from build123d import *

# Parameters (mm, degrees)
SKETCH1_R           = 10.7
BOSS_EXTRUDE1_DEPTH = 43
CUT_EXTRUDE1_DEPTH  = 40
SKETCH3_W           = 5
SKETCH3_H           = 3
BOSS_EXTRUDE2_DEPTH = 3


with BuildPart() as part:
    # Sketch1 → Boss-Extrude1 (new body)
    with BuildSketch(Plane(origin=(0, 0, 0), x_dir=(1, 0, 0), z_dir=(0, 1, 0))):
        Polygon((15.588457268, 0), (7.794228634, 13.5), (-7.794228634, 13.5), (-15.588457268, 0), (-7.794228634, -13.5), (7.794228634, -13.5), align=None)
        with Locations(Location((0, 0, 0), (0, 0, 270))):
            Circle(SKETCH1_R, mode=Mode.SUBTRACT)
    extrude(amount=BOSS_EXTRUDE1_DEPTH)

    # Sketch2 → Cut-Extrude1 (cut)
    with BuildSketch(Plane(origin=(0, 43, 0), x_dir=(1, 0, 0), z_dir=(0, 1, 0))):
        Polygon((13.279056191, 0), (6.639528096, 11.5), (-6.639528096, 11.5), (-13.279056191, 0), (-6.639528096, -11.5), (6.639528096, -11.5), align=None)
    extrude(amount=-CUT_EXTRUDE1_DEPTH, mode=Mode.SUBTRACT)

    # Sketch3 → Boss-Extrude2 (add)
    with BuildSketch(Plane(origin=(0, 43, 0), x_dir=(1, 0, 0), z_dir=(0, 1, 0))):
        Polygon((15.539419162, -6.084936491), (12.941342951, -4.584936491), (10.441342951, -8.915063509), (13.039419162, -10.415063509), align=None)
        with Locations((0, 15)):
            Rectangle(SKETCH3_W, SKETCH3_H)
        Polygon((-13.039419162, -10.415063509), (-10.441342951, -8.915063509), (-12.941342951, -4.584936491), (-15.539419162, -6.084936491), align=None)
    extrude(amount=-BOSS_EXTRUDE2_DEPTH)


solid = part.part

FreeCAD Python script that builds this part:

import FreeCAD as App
import Part
import Sketcher
from FreeCAD import Vector
Q = App.Units.Quantity

doc = App.newDocument("Part")
body = doc.addObject("PartDesign::Body", "Body")

# Sketch on XZ plane
sketch1 = body.newObject("Sketcher::SketchObject", "Sketch")
sketch1.AttachmentSupport = (doc.getObject("XZ_Plane"), [""])
sketch1.MapMode = "FlatFace"
sketch1.addGeometry(Part.LineSegment(Vector(16, 0, 0), Vector(8, -14, 0)), False)
sketch1.addGeometry(Part.LineSegment(Vector(8, -14, 0), Vector(-8, -14, 0)), False)
sketch1.addGeometry(Part.LineSegment(Vector(-8, -14, 0), Vector(-16, 0, 0)), False)
sketch1.addGeometry(Part.LineSegment(Vector(-16, 0, 0), Vector(-8, 14, 0)), False)
sketch1.addGeometry(Part.LineSegment(Vector(-8, 14, 0), Vector(8, 14, 0)), False)
sketch1.addGeometry(Part.LineSegment(Vector(8, 14, 0), Vector(16, 0, 0)), False)
sketch1.addGeometry(Part.Circle(Vector(0, 0, 0), Vector(0, 0, 1), 11), False)
sketch1.addConstraint(Sketcher.Constraint("Coincident", 0, 2, 1, 1))
sketch1.addConstraint(Sketcher.Constraint("Coincident", 1, 2, 2, 1))
sketch1.addConstraint(Sketcher.Constraint("Coincident", 2, 2, 3, 1))
sketch1.addConstraint(Sketcher.Constraint("Coincident", 3, 2, 4, 1))
sketch1.addConstraint(Sketcher.Constraint("Coincident", 4, 2, 5, 1))
sketch1.addConstraint(Sketcher.Constraint("Coincident", 5, 2, 0, 1))
sketch1.addConstraint(Sketcher.Constraint("Horizontal", 1))
sketch1.addConstraint(Sketcher.Constraint("Horizontal", 4))
sketch1.addConstraint(Sketcher.Constraint("Coincident", 6, 3, -1, 1))
sketch1.addConstraint(Sketcher.Constraint("Symmetric", 0, 2, 3, 2, -1, 1))
sketch1.addConstraint(Sketcher.Constraint("Symmetric", 2, 2, 5, 2, -1, 1))
sketch1.addConstraint(Sketcher.Constraint("PointOnObject", 2, 2, -1))
sketch1.addConstraint(Sketcher.Constraint("Parallel", 2, 5))
sketch1.addConstraint(Sketcher.Constraint("Vertical", 1, 2, 3, 2))
sketch1.addConstraint(Sketcher.Constraint("Diameter", 6, Q("21.4 mm")))
sketch1.addConstraint(Sketcher.Constraint("Angle", 0, Q("-120 deg")))
sketch1.addConstraint(Sketcher.Constraint("DistanceY", 1, 2, 3, 2, Q("27 mm")))
sketch1.addConstraint(Sketcher.Constraint("DistanceX", 1, 2, 1, 1, Q("15.588457 mm")))
pad1 = body.newObject("PartDesign::Pad", "Pad")
pad1.Profile = sketch1
pad1.Length = 43
pad1.Reversed = True

# Sketch on XZ plane
sketch2 = body.newObject("Sketcher::SketchObject", "Sketch001")
sketch2.AttachmentSupport = (doc.getObject("XZ_Plane"), [""])
sketch2.MapMode = "FlatFace"
sketch2.AttachmentOffset = App.Placement(Vector(0, 0, -43), App.Rotation())
sketch2.addGeometry(Part.LineSegment(Vector(13, 0, 0), Vector(7, -12, 0)), False)
sketch2.addGeometry(Part.LineSegment(Vector(7, -12, 0), Vector(-7, -12, 0)), False)
sketch2.addGeometry(Part.LineSegment(Vector(-7, -12, 0), Vector(-13, 0, 0)), False)
sketch2.addGeometry(Part.LineSegment(Vector(-13, 0, 0), Vector(-7, 12, 0)), False)
sketch2.addGeometry(Part.LineSegment(Vector(-7, 12, 0), Vector(7, 12, 0)), False)
sketch2.addGeometry(Part.LineSegment(Vector(7, 12, 0), Vector(13, 0, 0)), False)
sketch2.addConstraint(Sketcher.Constraint("Coincident", 0, 2, 1, 1))
sketch2.addConstraint(Sketcher.Constraint("Coincident", 1, 2, 2, 1))
sketch2.addConstraint(Sketcher.Constraint("Coincident", 2, 2, 3, 1))
sketch2.addConstraint(Sketcher.Constraint("Coincident", 3, 2, 4, 1))
sketch2.addConstraint(Sketcher.Constraint("Coincident", 4, 2, 5, 1))
sketch2.addConstraint(Sketcher.Constraint("Coincident", 5, 2, 0, 1))
sketch2.addConstraint(Sketcher.Constraint("Horizontal", 1))
sketch2.addConstraint(Sketcher.Constraint("Horizontal", 4))
sketch2.addConstraint(Sketcher.Constraint("Symmetric", 0, 2, 3, 2, -1, 1))
sketch2.addConstraint(Sketcher.Constraint("Symmetric", 2, 2, 5, 2, -1, 1))
sketch2.addConstraint(Sketcher.Constraint("PointOnObject", 2, 2, -1))
sketch2.addConstraint(Sketcher.Constraint("Parallel", 2, 5))
sketch2.addConstraint(Sketcher.Constraint("Vertical", 1, 2, 3, 2))
sketch2.addConstraint(Sketcher.Constraint("Angle", 0, Q("-120 deg")))
sketch2.addConstraint(Sketcher.Constraint("DistanceY", 1, 2, 3, 2, Q("23 mm")))
sketch2.addConstraint(Sketcher.Constraint("DistanceX", 1, 2, 1, 1, Q("13.279056 mm")))
pocket1 = body.newObject("PartDesign::Pocket", "Pocket")
pocket1.Profile = sketch2
pocket1.Length = 40
pocket1.Reversed = True

# Sketch on XZ plane
sketch3 = body.newObject("Sketcher::SketchObject", "Sketch002")
sketch3.AttachmentSupport = (doc.getObject("XZ_Plane"), [""])
sketch3.MapMode = "FlatFace"
sketch3.AttachmentOffset = App.Placement(Vector(0, 0, -43), App.Rotation())
sketch3.addGeometry(Part.LineSegment(Vector(15.5, 6.1, 0), Vector(12.9, 4.6, 0)), False)
sketch3.addGeometry(Part.LineSegment(Vector(12.9, 4.6, 0), Vector(10.4, 8.9, 0)), False)
sketch3.addGeometry(Part.LineSegment(Vector(10.4, 8.9, 0), Vector(13, 10.4, 0)), False)
sketch3.addGeometry(Part.LineSegment(Vector(13, 10.4, 0), Vector(15.5, 6.1, 0)), False)
sketch3.addGeometry(Part.LineSegment(Vector(-2.5, -16.5, 0), Vector(-2.5, -13.5, 0)), False)
sketch3.addGeometry(Part.LineSegment(Vector(-2.5, -13.5, 0), Vector(2.5, -13.5, 0)), False)
sketch3.addGeometry(Part.LineSegment(Vector(2.5, -13.5, 0), Vector(2.5, -16.5, 0)), False)
sketch3.addGeometry(Part.LineSegment(Vector(2.5, -16.5, 0), Vector(-2.5, -16.5, 0)), False)
sketch3.addGeometry(Part.LineSegment(Vector(-13, 10.4, 0), Vector(-10.4, 8.9, 0)), False)
sketch3.addGeometry(Part.LineSegment(Vector(-10.4, 8.9, 0), Vector(-12.9, 4.6, 0)), False)
sketch3.addGeometry(Part.LineSegment(Vector(-12.9, 4.6, 0), Vector(-15.5, 6.1, 0)), False)
sketch3.addGeometry(Part.LineSegment(Vector(-15.5, 6.1, 0), Vector(-13, 10.4, 0)), False)
sketch3.addConstraint(Sketcher.Constraint("Coincident", 0, 2, 1, 1))
sketch3.addConstraint(Sketcher.Constraint("Coincident", 1, 2, 2, 1))
sketch3.addConstraint(Sketcher.Constraint("Coincident", 2, 2, 3, 1))
sketch3.addConstraint(Sketcher.Constraint("Coincident", 3, 2, 0, 1))
sketch3.addConstraint(Sketcher.Constraint("Coincident", 4, 2, 5, 1))
sketch3.addConstraint(Sketcher.Constraint("Coincident", 5, 2, 6, 1))
sketch3.addConstraint(Sketcher.Constraint("Coincident", 6, 2, 7, 1))
sketch3.addConstraint(Sketcher.Constraint("Coincident", 7, 2, 4, 1))
sketch3.addConstraint(Sketcher.Constraint("Coincident", 8, 2, 9, 1))
sketch3.addConstraint(Sketcher.Constraint("Coincident", 9, 2, 10, 1))
sketch3.addConstraint(Sketcher.Constraint("Coincident", 10, 2, 11, 1))
sketch3.addConstraint(Sketcher.Constraint("Coincident", 11, 2, 8, 1))
sketch3.addConstraint(Sketcher.Constraint("Vertical", 4))
sketch3.addConstraint(Sketcher.Constraint("Horizontal", 5))
sketch3.addConstraint(Sketcher.Constraint("Vertical", 6))
sketch3.addConstraint(Sketcher.Constraint("Horizontal", 7))
sketch3.addConstraint(Sketcher.Constraint("Symmetric", 1, 2, 8, 2, -2))
sketch3.addConstraint(Sketcher.Constraint("Symmetric", 0, 2, 9, 2, -2))
sketch3.addConstraint(Sketcher.Constraint("Symmetric", 3, 2, 10, 2, -2))
sketch3.addConstraint(Sketcher.Constraint("Symmetric", 2, 2, 11, 2, -2))
sketch3.addConstraint(Sketcher.Constraint("Perpendicular", 0, 1))
sketch3.addConstraint(Sketcher.Constraint("Perpendicular", 1, 2))
sketch3.addConstraint(Sketcher.Constraint("Perpendicular", 2, 3))
sketch3.addConstraint(Sketcher.Constraint("DistanceX", 5, 1, 5, 2, Q("5 mm")))
sketch3.addConstraint(Sketcher.Constraint("DistanceY", 4, 1, 4, 2, Q("3 mm")))
sketch3.addConstraint(Sketcher.Constraint("Angle", 0, Q("-150 deg")))
sketch3.addConstraint(Sketcher.Constraint("Distance", 0, Q("3 mm")))
sketch3.addConstraint(Sketcher.Constraint("Distance", 1, Q("5 mm")))
sketch3.addConstraint(Sketcher.Constraint("DistanceX", 4, 2, -1, 1, Q("2.5 mm")))
sketch3.addConstraint(Sketcher.Constraint("DistanceY", 4, 2, -1, 1, Q("13.5 mm")))
sketch3.addConstraint(Sketcher.Constraint("DistanceX", -1, 1, 2, 2, Q("13.039419 mm")))
sketch3.addConstraint(Sketcher.Constraint("DistanceY", -1, 1, 0, 2, Q("4.584936 mm")))
pad2 = body.newObject("PartDesign::Pad", "Pad001")
pad2.Profile = sketch3
pad2.Length = 3

doc.recompute()
